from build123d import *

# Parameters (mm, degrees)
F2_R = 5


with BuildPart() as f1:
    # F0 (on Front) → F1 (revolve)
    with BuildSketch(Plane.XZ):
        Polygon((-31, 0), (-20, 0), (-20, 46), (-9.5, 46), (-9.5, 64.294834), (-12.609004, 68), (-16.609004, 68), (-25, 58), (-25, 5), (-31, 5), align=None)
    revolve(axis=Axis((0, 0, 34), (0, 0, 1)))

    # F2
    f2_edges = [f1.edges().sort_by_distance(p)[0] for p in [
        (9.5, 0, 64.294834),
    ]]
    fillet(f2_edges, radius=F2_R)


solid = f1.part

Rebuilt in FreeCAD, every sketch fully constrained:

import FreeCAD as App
import Part
import Sketcher
Q = App.Units.Quantity


def edges_at(feature, points):
    """Names of the edges that pass closest to the given points."""
    edges = feature.Shape.Edges
    near = lambda p: min(range(len(edges)), key=lambda i: edges[i].distToShape(Part.Vertex(*p))[0])
    return sorted({f"Edge{near(p) + 1}" for p in points})

doc = App.newDocument("Part")
params = doc.addObject("Spreadsheet::Sheet", "Params")
for row, (alias, value) in enumerate([
    ("sketch1_width", "11 mm"),
    ("sketch1_width2", "4 mm"),
    ("sketch1_width3", "6 mm"),
    ("sketch1_height", "46 mm"),
    ("sketch1_height2", "53 mm"),
    ("revolution_angle", "360 deg"),
    ("fillet_radius", "5 mm"),
], start=1):
    params.set(f"A{row}", alias)
    params.set(f"B{row}", "=" + value)
    params.setAlias(f"B{row}", alias)

body = doc.addObject("PartDesign::Body", "Body")

# Sketch on XZ plane
sketch1 = body.newObject("Sketcher::SketchObject", "Sketch")
sketch1.AttachmentSupport = (doc.getObject("XZ_Plane"), [""])
sketch1.MapMode = "FlatFace"
sketch1.addGeometry(Part.LineSegment(App.Vector(-31, 0, 0), App.Vector(-20, 0, 0)), False)
sketch1.addGeometry(Part.LineSegment(App.Vector(-20, 0, 0), App.Vector(-20, 46, 0)), False)
sketch1.addGeometry(Part.LineSegment(App.Vector(-20, 46, 0), App.Vector(-9.5, 46, 0)), False)
sketch1.addGeometry(Part.LineSegment(App.Vector(-9.5, 46, 0), App.Vector(-9.5, 64.3, 0)), False)
sketch1.addGeometry(Part.LineSegment(App.Vector(-9.5, 64.3, 0), App.Vector(-12.6, 68, 0)), False)
sketch1.addGeometry(Part.LineSegment(App.Vector(-12.6, 68, 0), App.Vector(-16.6, 68, 0)), False)
sketch1.addGeometry(Part.LineSegment(App.Vector(-16.6, 68, 0), App.Vector(-25, 58, 0)), False)
sketch1.addGeometry(Part.LineSegment(App.Vector(-25, 58, 0), App.Vector(-25, 5, 0)), False)
sketch1.addGeometry(Part.LineSegment(App.Vector(-25, 5, 0), App.Vector(-31, 5, 0)), False)
sketch1.addGeometry(Part.LineSegment(App.Vector(-31, 5, 0), App.Vector(-31, 0, 0)), False)
sketch1.addConstraint(Sketcher.Constraint("Coincident", 0, 2, 1, 1))
sketch1.addConstraint(Sketcher.Constraint("Coincident", 1, 2, 2, 1))
sketch1.addConstraint(Sketcher.Constraint("Coincident", 2, 2, 3, 1))
sketch1.addConstraint(Sketcher.Constraint("Coincident", 3, 2, 4, 1))
sketch1.addConstraint(Sketcher.Constraint("Coincident", 4, 2, 5, 1))
sketch1.addConstraint(Sketcher.Constraint("Coincident", 5, 2, 6, 1))
sketch1.addConstraint(Sketcher.Constraint("Coincident", 6, 2, 7, 1))
sketch1.addConstraint(Sketcher.Constraint("Coincident", 7, 2, 8, 1))
sketch1.addConstraint(Sketcher.Constraint("Coincident", 8, 2, 9, 1))
sketch1.addConstraint(Sketcher.Constraint("Coincident", 9, 2, 0, 1))
sketch1.addConstraint(Sketcher.Constraint("Horizontal", 0))
sketch1.addConstraint(Sketcher.Constraint("Vertical", 1))
sketch1.addConstraint(Sketcher.Constraint("Horizontal", 2))
sketch1.addConstraint(Sketcher.Constraint("Vertical", 3))
sketch1.addConstraint(Sketcher.Constraint("Horizontal", 5))
sketch1.addConstraint(Sketcher.Constraint("Vertical", 7))
sketch1.addConstraint(Sketcher.Constraint("Horizontal", 8))
sketch1.addConstraint(Sketcher.Constraint("Vertical", 9))
sketch1.addConstraint(Sketcher.Constraint("PointOnObject", 0, 2, -1))
sketch1.addConstraint(Sketcher.Constraint("DistanceX", 0, 1, 0, 2, Q("11 mm")))
sketch1.addConstraint(Sketcher.Constraint("DistanceX", 5, 2, 5, 1, Q("4 mm")))
sketch1.addConstraint(Sketcher.Constraint("DistanceX", 8, 2, 8, 1, Q("6 mm")))
sketch1.addConstraint(Sketcher.Constraint("DistanceY", 1, 1, 1, 2, Q("46 mm")))
sketch1.addConstraint(Sketcher.Constraint("DistanceY", 7, 2, 7, 1, Q("53 mm")))
sketch1.addConstraint(Sketcher.Constraint("DistanceY", 9, 2, 9, 1, Q("5 mm")))
sketch1.addConstraint(Sketcher.Constraint("Angle", 4, Q("130.000005 deg")))
sketch1.addConstraint(Sketcher.Constraint("Angle", 6, Q("-129.999999 deg")))
sketch1.addConstraint(Sketcher.Constraint("DistanceX", 2, 1, 2, 2, Q("10.5 mm")))
sketch1.addConstraint(Sketcher.Constraint("DistanceX", 0, 2, -1, 1, Q("20 mm")))
sketch1.addConstraint(Sketcher.Constraint("DistanceY", -1, 1, 4, 2, Q("68 mm")))
sketch1.setExpression("Constraints[19]", "Params.sketch1_width")
sketch1.setExpression("Constraints[20]", "Params.sketch1_width2")
sketch1.setExpression("Constraints[21]", "Params.sketch1_width3")
sketch1.setExpression("Constraints[22]", "Params.sketch1_height")
sketch1.setExpression("Constraints[23]", "Params.sketch1_height2")
revolution = body.newObject("PartDesign::Revolution", "Revolution")
revolution.Profile = sketch1
revolution.ReferenceAxis = (sketch1, ["V_Axis"])
revolution.setExpression("Angle", "Params.revolution_angle")
doc.recompute()

fillet = body.newObject("PartDesign::Fillet", "Fillet")
fillet.Base = (revolution, edges_at(revolution, [(9.5, 0, 64.295)]))
fillet.setExpression("Radius", "Params.fillet_radius")

doc.recompute()
